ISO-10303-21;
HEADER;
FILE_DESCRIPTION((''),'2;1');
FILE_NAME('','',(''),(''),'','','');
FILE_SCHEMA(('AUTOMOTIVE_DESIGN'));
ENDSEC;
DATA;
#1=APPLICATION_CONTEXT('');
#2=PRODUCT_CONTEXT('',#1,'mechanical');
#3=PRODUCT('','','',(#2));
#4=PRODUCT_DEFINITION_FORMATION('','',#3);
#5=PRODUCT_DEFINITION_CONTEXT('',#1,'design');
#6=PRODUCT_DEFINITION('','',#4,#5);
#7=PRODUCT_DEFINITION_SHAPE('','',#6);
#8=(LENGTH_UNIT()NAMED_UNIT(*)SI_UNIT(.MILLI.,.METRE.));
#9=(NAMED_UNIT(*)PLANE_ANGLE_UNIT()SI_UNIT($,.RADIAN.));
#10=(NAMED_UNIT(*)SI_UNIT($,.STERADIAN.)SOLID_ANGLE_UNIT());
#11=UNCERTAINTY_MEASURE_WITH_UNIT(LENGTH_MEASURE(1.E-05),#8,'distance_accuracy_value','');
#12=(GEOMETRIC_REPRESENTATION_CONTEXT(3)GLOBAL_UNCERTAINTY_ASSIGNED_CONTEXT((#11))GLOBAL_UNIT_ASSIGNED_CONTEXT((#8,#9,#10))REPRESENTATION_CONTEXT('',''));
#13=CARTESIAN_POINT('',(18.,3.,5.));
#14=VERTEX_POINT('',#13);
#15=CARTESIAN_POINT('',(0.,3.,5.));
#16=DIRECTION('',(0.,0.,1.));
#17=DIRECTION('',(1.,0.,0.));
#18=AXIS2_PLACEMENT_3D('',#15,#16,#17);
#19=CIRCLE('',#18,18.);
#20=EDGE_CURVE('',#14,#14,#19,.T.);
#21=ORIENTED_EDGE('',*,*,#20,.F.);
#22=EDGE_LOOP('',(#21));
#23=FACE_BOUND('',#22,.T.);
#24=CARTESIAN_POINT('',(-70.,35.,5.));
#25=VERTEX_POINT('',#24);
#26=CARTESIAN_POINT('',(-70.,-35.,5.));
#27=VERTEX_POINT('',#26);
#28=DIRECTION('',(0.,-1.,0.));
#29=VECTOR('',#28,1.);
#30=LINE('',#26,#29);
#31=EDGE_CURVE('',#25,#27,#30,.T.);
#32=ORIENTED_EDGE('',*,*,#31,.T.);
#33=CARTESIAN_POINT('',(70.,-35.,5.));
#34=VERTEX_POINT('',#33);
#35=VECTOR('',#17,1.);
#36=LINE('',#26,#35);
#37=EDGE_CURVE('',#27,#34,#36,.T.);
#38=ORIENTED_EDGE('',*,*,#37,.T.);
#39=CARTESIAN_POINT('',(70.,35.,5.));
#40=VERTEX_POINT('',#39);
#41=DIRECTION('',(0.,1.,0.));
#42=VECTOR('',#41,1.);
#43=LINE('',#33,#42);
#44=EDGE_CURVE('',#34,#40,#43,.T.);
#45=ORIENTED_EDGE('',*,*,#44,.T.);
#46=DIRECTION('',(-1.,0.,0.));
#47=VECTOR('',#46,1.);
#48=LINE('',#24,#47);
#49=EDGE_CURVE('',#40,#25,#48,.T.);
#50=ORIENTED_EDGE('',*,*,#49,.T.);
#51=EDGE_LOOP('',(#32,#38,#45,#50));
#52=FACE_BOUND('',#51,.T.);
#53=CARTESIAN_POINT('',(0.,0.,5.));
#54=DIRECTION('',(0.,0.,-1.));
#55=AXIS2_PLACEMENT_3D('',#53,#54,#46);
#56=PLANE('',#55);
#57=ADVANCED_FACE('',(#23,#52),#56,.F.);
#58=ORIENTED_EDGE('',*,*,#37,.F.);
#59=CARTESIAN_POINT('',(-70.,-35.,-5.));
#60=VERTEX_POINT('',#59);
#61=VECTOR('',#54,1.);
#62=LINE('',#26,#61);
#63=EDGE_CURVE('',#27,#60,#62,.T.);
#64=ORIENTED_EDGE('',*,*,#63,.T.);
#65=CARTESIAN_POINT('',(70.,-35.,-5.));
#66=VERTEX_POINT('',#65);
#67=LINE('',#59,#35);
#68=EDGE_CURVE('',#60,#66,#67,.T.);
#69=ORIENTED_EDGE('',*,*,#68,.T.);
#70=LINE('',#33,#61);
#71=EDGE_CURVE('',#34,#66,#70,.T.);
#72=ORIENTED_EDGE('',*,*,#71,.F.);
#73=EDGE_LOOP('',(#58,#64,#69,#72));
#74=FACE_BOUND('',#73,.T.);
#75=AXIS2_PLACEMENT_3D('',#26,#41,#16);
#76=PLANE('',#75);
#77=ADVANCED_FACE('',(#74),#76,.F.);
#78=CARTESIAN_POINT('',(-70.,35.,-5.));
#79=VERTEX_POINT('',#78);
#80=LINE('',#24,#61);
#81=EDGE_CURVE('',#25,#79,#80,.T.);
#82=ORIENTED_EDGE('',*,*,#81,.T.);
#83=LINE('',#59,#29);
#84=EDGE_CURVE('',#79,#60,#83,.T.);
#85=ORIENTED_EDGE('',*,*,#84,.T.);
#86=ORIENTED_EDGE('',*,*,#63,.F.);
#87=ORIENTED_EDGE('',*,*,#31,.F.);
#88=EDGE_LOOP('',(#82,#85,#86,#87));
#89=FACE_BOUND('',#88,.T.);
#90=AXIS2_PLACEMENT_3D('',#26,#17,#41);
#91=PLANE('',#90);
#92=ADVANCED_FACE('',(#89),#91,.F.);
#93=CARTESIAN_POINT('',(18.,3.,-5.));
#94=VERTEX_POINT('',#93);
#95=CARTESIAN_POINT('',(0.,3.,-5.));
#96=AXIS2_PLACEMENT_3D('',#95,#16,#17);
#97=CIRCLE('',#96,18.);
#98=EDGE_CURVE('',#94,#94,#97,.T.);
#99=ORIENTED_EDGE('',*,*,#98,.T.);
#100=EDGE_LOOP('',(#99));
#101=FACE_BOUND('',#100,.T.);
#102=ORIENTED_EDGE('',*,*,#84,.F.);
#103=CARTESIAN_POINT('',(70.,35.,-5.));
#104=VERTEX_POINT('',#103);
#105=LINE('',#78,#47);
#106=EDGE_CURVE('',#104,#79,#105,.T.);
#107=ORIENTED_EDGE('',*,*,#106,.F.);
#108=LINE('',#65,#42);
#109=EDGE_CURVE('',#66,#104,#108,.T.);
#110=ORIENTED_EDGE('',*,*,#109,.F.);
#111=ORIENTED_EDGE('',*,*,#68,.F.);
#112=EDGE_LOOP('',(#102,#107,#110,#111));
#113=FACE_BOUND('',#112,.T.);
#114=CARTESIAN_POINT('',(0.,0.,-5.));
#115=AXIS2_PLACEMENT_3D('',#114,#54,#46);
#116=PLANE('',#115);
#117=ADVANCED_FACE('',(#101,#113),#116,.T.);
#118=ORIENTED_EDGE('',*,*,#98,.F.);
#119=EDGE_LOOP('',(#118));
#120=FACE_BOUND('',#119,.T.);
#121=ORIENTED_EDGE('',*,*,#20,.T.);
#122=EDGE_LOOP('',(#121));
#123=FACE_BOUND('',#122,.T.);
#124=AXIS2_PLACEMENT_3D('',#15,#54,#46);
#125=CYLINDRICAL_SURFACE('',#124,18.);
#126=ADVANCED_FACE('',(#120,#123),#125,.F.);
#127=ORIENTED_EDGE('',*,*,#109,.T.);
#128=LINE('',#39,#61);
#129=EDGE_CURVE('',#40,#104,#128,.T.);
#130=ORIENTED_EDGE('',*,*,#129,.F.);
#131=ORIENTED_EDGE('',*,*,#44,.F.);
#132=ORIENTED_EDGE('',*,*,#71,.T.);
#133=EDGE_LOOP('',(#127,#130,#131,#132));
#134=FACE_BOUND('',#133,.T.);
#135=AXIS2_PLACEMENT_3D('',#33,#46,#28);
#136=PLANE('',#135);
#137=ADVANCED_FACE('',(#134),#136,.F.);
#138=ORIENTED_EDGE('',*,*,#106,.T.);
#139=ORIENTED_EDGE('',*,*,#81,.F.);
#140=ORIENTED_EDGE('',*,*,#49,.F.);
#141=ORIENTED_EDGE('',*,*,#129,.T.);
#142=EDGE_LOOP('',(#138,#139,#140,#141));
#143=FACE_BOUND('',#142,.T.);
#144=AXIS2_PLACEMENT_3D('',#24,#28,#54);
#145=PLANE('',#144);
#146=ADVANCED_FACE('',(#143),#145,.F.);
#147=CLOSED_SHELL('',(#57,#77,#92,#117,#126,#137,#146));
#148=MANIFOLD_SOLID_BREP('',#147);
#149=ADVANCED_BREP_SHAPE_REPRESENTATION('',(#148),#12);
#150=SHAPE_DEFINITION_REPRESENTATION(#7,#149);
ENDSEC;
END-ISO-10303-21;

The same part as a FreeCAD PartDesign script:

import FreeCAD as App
import Part
import Sketcher

V = App.Vector
Q = App.Units.Quantity

doc = App.newDocument("Part")
body = doc.addObject("PartDesign::Body", "Body")

sketch1 = body.newObject("Sketcher::SketchObject", "Sketch")
sketch1.AttachmentSupport = (doc.getObject("XY_Plane"), [""])
sketch1.MapMode = "FlatFace"
sketch1.addGeometry(Part.LineSegment(V(-70, 35, 0), V(-70, -35, 0)), False)
sketch1.addGeometry(Part.LineSegment(V(-70, -35, 0), V(70, -35, 0)), False)
sketch1.addGeometry(Part.LineSegment(V(70, -35, 0), V(70, 35, 0)), False)
sketch1.addGeometry(Part.LineSegment(V(70, 35, 0), V(-70, 35, 0)), False)
sketch1.addGeometry(Part.Circle(V(0, 3, 0), V(0, 0, 1), 18), False)
sketch1.addConstraint(Sketcher.Constraint("Coincident", 0, 2, 1, 1))
sketch1.addConstraint(Sketcher.Constraint("Coincident", 1, 2, 2, 1))
sketch1.addConstraint(Sketcher.Constraint("Coincident", 2, 2, 3, 1))
sketch1.addConstraint(Sketcher.Constraint("Coincident", 3, 2, 0, 1))
sketch1.addConstraint(Sketcher.Constraint("Vertical", 0))
sketch1.addConstraint(Sketcher.Constraint("Horizontal", 1))
sketch1.addConstraint(Sketcher.Constraint("Vertical", 2))
sketch1.addConstraint(Sketcher.Constraint("Horizontal", 3))
sketch1.addConstraint(Sketcher.Constraint("Symmetric", 0, 2, 2, 2, -1, 1))
sketch1.addConstraint(Sketcher.Constraint("PointOnObject", 4, 3, -2))
sketch1.addConstraint(Sketcher.Constraint("Diameter", 4, Q("36 mm")))
sketch1.addConstraint(Sketcher.Constraint("DistanceX", 1, 1, 1, 2, Q("140 mm")))
sketch1.addConstraint(Sketcher.Constraint("DistanceY", 0, 2, 0, 1, Q("70 mm")))
sketch1.addConstraint(Sketcher.Constraint("DistanceY", -1, 1, 4, 3, Q("3 mm")))
pad1 = body.newObject("PartDesign::Pad", "Pad")
pad1.Profile = sketch1
pad1.Length = 10
pad1.Midplane = True

doc.recompute()
